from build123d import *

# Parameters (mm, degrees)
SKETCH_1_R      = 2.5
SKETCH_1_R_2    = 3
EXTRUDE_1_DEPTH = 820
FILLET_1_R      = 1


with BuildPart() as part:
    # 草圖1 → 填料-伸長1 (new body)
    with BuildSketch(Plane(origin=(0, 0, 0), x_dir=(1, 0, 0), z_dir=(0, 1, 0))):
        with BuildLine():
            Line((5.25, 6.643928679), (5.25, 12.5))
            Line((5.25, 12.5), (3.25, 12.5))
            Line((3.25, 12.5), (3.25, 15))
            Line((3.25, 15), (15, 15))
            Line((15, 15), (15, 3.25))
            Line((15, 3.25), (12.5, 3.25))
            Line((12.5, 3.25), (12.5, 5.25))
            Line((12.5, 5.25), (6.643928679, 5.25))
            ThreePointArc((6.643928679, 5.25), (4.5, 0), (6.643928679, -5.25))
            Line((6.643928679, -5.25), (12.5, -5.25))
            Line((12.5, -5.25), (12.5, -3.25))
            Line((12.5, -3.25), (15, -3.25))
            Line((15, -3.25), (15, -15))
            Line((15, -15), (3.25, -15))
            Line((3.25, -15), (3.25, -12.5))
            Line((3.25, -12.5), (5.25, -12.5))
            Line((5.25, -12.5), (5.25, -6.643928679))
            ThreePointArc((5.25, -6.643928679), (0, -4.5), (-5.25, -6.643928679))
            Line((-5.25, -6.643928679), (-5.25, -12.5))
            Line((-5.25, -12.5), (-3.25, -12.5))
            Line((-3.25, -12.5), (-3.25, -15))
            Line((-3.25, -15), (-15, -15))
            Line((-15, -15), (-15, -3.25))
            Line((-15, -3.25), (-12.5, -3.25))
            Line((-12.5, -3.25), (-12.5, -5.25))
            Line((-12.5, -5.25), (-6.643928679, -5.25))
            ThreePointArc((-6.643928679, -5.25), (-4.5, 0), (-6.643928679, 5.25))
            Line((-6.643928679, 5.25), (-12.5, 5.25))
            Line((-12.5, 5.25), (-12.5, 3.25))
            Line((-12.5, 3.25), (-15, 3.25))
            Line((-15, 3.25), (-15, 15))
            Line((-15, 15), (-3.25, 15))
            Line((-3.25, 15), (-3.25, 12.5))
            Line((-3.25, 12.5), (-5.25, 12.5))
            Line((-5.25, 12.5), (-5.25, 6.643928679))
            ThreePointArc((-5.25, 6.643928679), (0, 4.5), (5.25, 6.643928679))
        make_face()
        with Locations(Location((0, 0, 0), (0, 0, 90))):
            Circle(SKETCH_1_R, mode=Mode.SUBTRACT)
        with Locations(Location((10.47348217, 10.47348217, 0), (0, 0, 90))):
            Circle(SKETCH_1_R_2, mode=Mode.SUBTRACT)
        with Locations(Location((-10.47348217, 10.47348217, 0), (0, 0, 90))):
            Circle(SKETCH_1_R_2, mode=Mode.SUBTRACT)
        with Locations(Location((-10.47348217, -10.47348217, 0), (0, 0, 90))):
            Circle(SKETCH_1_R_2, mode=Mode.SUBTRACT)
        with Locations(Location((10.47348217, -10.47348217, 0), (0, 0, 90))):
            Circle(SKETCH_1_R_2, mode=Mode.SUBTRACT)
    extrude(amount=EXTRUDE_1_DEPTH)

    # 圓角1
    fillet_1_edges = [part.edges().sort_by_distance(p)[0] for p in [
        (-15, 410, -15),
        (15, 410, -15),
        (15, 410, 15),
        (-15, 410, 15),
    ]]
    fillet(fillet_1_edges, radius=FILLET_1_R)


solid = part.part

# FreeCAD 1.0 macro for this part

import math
import FreeCAD as App
import Part
import Sketcher

V = App.Vector
Q = App.Units.Quantity


def edges_at(feature, points):
    """Names of the edges that pass closest to the given points."""
    edges = feature.Shape.Edges
    near = lambda p: min(range(len(edges)), key=lambda i: edges[i].distToShape(Part.Vertex(*p))[0])
    return sorted({f"Edge{near(p) + 1}" for p in points})

doc = App.newDocument("Part")
body = doc.addObject("PartDesign::Body", "Body")

# Sketch on XZ plane
sketch1 = body.newObject("Sketcher::SketchObject", "Sketch")
sketch1.AttachmentSupport = (doc.getObject("XZ_Plane"), [""])
sketch1.MapMode = "FlatFace"
sketch1.addGeometry([
    Part.LineSegment(V(5.25, -12.5, 0), V(5.25, -6.643929, 0)),  # 0
    Part.ArcOfCircle(Part.Circle(V(0, -12, 0), V(0, 0, 1), 7.5), math.radians(45.572996), math.radians(134.427004)),  # 1
    Part.LineSegment(V(-5.25, -6.643929, 0), V(-5.25, -12.5, 0)),  # 2
    Part.LineSegment(V(-5.25, -12.5, 0), V(-3.25, -12.5, 0)),  # 3
    Part.LineSegment(V(-3.25, -12.5, 0), V(-3.25, -15, 0)),  # 4
    Part.LineSegment(V(-3.25, -15, 0), V(-15, -15, 0)),  # 5
    Part.LineSegment(V(-15, -15, 0), V(-15, -3.25, 0)),  # 6
    Part.LineSegment(V(-15, -3.25, 0), V(-12.5, -3.25, 0)),  # 7
    Part.LineSegment(V(-12.5, -3.25, 0), V(-12.5, -5.25, 0)),  # 8
    Part.LineSegment(V(-12.5, -5.25, 0), V(-6.643929, -5.25, 0)),  # 9
    Part.ArcOfCircle(Part.Circle(V(-12, 0, 0), V(0, 0, 1), 7.5), math.radians(-44.427004), math.radians(44.427004)),  # 10
    Part.LineSegment(V(-6.643929, 5.25, 0), V(-12.5, 5.25, 0)),  # 11
    Part.LineSegment(V(-12.5, 5.25, 0), V(-12.5, 3.25, 0)),  # 12
    Part.LineSegment(V(-12.5, 3.25, 0), V(-15, 3.25, 0)),  # 13
    Part.LineSegment(V(-15, 3.25, 0), V(-15, 15, 0)),  # 14
    Part.LineSegment(V(-15, 15, 0), V(-3.25, 15, 0)),  # 15
    Part.LineSegment(V(-3.25, 15, 0), V(-3.25, 12.5, 0)),  # 16
    Part.LineSegment(V(-3.25, 12.5, 0), V(-5.25, 12.5, 0)),  # 17
    Part.LineSegment(V(-5.25, 12.5, 0), V(-5.25, 6.643929, 0)),  # 18
    Part.ArcOfCircle(Part.Circle(V(0, 12, 0), V(0, 0, 1), 7.5), math.radians(-134.427004), math.radians(-45.572996)),  # 19
    Part.LineSegment(V(5.25, 6.643929, 0), V(5.25, 12.5, 0)),  # 20
    Part.LineSegment(V(5.25, 12.5, 0), V(3.25, 12.5, 0)),  # 21
    Part.LineSegment(V(3.25, 12.5, 0), V(3.25, 15, 0)),  # 22
    Part.LineSegment(V(3.25, 15, 0), V(15, 15, 0)),  # 23
    Part.LineSegment(V(15, 15, 0), V(15, 3.25, 0)),  # 24
    Part.LineSegment(V(15, 3.25, 0), V(12.5, 3.25, 0)),  # 25
    Part.LineSegment(V(12.5, 3.25, 0), V(12.5, 5.25, 0)),  # 26
    Part.LineSegment(V(12.5, 5.25, 0), V(6.643929, 5.25, 0)),  # 27
    Part.ArcOfCircle(Part.Circle(V(12, 0, 0), V(0, 0, 1), 7.5), math.radians(135.572996), math.radians(224.427004)),  # 28
    Part.LineSegment(V(6.643929, -5.25, 0), V(12.5, -5.25, 0)),  # 29
    Part.LineSegment(V(12.5, -5.25, 0), V(12.5, -3.25, 0)),  # 30
    Part.LineSegment(V(12.5, -3.25, 0), V(15, -3.25, 0)),  # 31
    Part.LineSegment(V(15, -3.25, 0), V(15, -15, 0)),  # 32
    Part.LineSegment(V(15, -15, 0), V(3.25, -15, 0)),  # 33
    Part.LineSegment(V(3.25, -15, 0), V(3.25, -12.5, 0)),  # 34
    Part.LineSegment(V(3.25, -12.5, 0), V(5.25, -12.5, 0)),  # 35
    Part.Circle(V(10.473482, 10.473482, 0), V(0, 0, 1), 3),  # 36
    Part.Circle(V(0, 0, 0), V(0, 0, 1), 2.5),  # 37
    Part.Circle(V(-10.473482, 10.473482, 0), V(0, 0, 1), 3),  # 38
    Part.Circle(V(10.473482, -10.473482, 0), V(0, 0, 1), 3),  # 39
    Part.Circle(V(-10.473482, -10.473482, 0), V(0, 0, 1), 3),  # 40
], False)
sketch1.addConstraint([
    Sketcher.Constraint("Coincident", 0, 2, 1, 1),
    Sketcher.Constraint("Coincident", 1, 2, 2, 1),
    Sketcher.Constraint("Coincident", 2, 2, 3, 1),
    Sketcher.Constraint("Coincident", 3, 2, 4, 1),
    Sketcher.Constraint("Coincident", 4, 2, 5, 1),
    Sketcher.Constraint("Coincident", 5, 2, 6, 1),
    Sketcher.Constraint("Coincident", 6, 2, 7, 1),
    Sketcher.Constraint("Coincident", 7, 2, 8, 1),
    Sketcher.Constraint("Coincident", 8, 2, 9, 1),
    Sketcher.Constraint("Coincident", 9, 2, 10, 1),
    Sketcher.Constraint("Coincident", 10, 2, 11, 1),
    Sketcher.Constraint("Coincident", 11, 2, 12, 1),
    Sketcher.Constraint("Coincident", 12, 2, 13, 1),
    Sketcher.Constraint("Coincident", 13, 2, 14, 1),
    Sketcher.Constraint("Coincident", 14, 2, 15, 1),
    Sketcher.Constraint("Coincident", 15, 2, 16, 1),
    Sketcher.Constraint("Coincident", 16, 2, 17, 1),
    Sketcher.Constraint("Coincident", 17, 2, 18, 1),
    Sketcher.Constraint("Coincident", 18, 2, 19, 1),
    Sketcher.Constraint("Coincident", 19, 2, 20, 1),
    Sketcher.Constraint("Coincident", 20, 2, 21, 1),
    Sketcher.Constraint("Coincident", 21, 2, 22, 1),
    Sketcher.Constraint("Coincident", 22, 2, 23, 1),
    Sketcher.Constraint("Coincident", 23, 2, 24, 1),
    Sketcher.Constraint("Coincident", 24, 2, 25, 1),
    Sketcher.Constraint("Coincident", 25, 2, 26, 1),
    Sketcher.Constraint("Coincident", 26, 2, 27, 1),
    Sketcher.Constraint("Coincident", 27, 2, 28, 1),
    Sketcher.Constraint("Coincident", 28, 2, 29, 1),
    Sketcher.Constraint("Coincident", 29, 2, 30, 1),
    Sketcher.Constraint("Coincident", 30, 2, 31, 1),
    Sketcher.Constraint("Coincident", 31, 2, 32, 1),
    Sketcher.Constraint("Coincident", 32, 2, 33, 1),
    Sketcher.Constraint("Coincident", 33, 2, 34, 1),
    Sketcher.Constraint("Coincident", 34, 2, 35, 1),
    Sketcher.Constraint("Coincident", 35, 2, 0, 1),
    Sketcher.Constraint("Vertical", 0),
    Sketcher.Constraint("Vertical", 2),
    Sketcher.Constraint("Horizontal", 3),
    Sketcher.Constraint("Vertical", 4),
    Sketcher.Constraint("Horizontal", 5),
    Sketcher.Constraint("Vertical", 6),
    Sketcher.Constraint("Horizontal", 7),
    Sketcher.Constraint("Vertical", 8),
    Sketcher.Constraint("Horizontal", 9),
    Sketcher.Constraint("Horizontal", 11),
    Sketcher.Constraint("Vertical", 12),
    Sketcher.Constraint("Horizontal", 13),
    Sketcher.Constraint("Vertical", 14),
    Sketcher.Constraint("Horizontal", 15),
    Sketcher.Constraint("Vertical", 16),
    Sketcher.Constraint("Horizontal", 17),
    Sketcher.Constraint("Vertical", 18),
    Sketcher.Constraint("Vertical", 20),
    Sketcher.Constraint("Horizontal", 21),
    Sketcher.Constraint("Vertical", 22),
    Sketcher.Constraint("Horizontal", 23),
    Sketcher.Constraint("Vertical", 24),
    Sketcher.Constraint("Horizontal", 25),
    Sketcher.Constraint("Vertical", 26),
    Sketcher.Constraint("Horizontal", 27),
    Sketcher.Constraint("Horizontal", 29),
    Sketcher.Constraint("Vertical", 30),
    Sketcher.Constraint("Horizontal", 31),
    Sketcher.Constraint("Vertical", 32),
    Sketcher.Constraint("Horizontal", 33),
    Sketcher.Constraint("Vertical", 34),
    Sketcher.Constraint("Horizontal", 35),
    Sketcher.Constraint("Coincident", 37, 3, -1, 1),
    Sketcher.Constraint("Equal", 1, 10),
    Sketcher.Constraint("Equal", 10, 19),
    Sketcher.Constraint("Equal", 19, 28),
    Sketcher.Constraint("Equal", 36, 38),
    Sketcher.Constraint("Equal", 38, 39),
    Sketcher.Constraint("Equal", 39, 40),
    Sketcher.Constraint("Symmetric", 1, 3, 19, 3, -1, 1),
    Sketcher.Constraint("Symmetric", 10, 3, 28, 3, -1, 1),
    Sketcher.Constraint("Symmetric", 38, 3, 39, 3, -1, 1),
    Sketcher.Constraint("Symmetric", 36, 3, 40, 3, -1, 1),
    Sketcher.Constraint("Symmetric", 2, 2, 20, 2, -1, 1),
    Sketcher.Constraint("Symmetric", 4, 2, 22, 2, -1, 1),
    Sketcher.Constraint("Symmetric", 6, 2, 24, 2, -1, 1),
    Sketcher.Constraint("Symmetric", 8, 2, 26, 2, -1, 1),
    Sketcher.Constraint("Symmetric", 11, 2, 29, 2, -1, 1),
    Sketcher.Constraint("Symmetric", 13, 2, 31, 2, -1, 1),
    Sketcher.Constraint("Symmetric", 15, 2, 33, 2, -1, 1),
    Sketcher.Constraint("Symmetric", 17, 2, 35, 2, -1, 1),
    Sketcher.Constraint("Symmetric", 36, 3, 38, 3, -2),
    Sketcher.Constraint("Symmetric", 0, 2, 1, 2, -2),
    Sketcher.Constraint("Symmetric", 16, 2, 21, 2, -2),
    Sketcher.Constraint("Symmetric", 14, 2, 23, 2, -2),
    Sketcher.Constraint("Symmetric", 12, 2, 25, 2, -2),
    Sketcher.Constraint("Symmetric", 10, 2, 27, 2, -2),
    Sketcher.Constraint("Equal", 29, 0),
    Sketcher.Constraint("Equal", 31, 4),
    Sketcher.Constraint("Equal", 33, 6),
    Sketcher.Constraint("Equal", 35, 8),
    Sketcher.Constraint("Diameter", 36, Q("6 mm")),
    Sketcher.Constraint("Diameter", 37, Q("5 mm")),
    Sketcher.Constraint("Radius", 1, Q("7.5 mm")),
    Sketcher.Constraint("DistanceX", 3, 1, 3, 2, Q("2 mm")),
    Sketcher.Constraint("DistanceX", 7, 1, 7, 2, Q("2.5 mm")),
    Sketcher.Constraint("DistanceY", 1, 3, -1, 1, Q("12 mm")),
    Sketcher.Constraint("DistanceX", 10, 3, -1, 1, Q("12 mm")),
    Sketcher.Constraint("DistanceY", 4, 2, -1, 1, Q("15 mm")),
    Sketcher.Constraint("DistanceX", 5, 2, 5, 1, Q("11.75 mm")),
    Sketcher.Constraint("DistanceX", -1, 1, 36, 3, Q("10.473482 mm")),
    Sketcher.Constraint("DistanceY", -1, 1, 36, 3, Q("10.473482 mm")),
])
pad1 = body.newObject("PartDesign::Pad", "Pad")
pad1.Profile = sketch1
pad1.Length = 820
pad1.Reversed = True
doc.recompute()

fillet = body.newObject("PartDesign::Fillet", "Fillet")
fillet.Base = (pad1, edges_at(pad1, [
    (-15, 410, -15),
    (15, 410, -15),
    (15, 410, 15),
    (-15, 410, 15),
]))
fillet.Radius = 1

doc.recompute()
